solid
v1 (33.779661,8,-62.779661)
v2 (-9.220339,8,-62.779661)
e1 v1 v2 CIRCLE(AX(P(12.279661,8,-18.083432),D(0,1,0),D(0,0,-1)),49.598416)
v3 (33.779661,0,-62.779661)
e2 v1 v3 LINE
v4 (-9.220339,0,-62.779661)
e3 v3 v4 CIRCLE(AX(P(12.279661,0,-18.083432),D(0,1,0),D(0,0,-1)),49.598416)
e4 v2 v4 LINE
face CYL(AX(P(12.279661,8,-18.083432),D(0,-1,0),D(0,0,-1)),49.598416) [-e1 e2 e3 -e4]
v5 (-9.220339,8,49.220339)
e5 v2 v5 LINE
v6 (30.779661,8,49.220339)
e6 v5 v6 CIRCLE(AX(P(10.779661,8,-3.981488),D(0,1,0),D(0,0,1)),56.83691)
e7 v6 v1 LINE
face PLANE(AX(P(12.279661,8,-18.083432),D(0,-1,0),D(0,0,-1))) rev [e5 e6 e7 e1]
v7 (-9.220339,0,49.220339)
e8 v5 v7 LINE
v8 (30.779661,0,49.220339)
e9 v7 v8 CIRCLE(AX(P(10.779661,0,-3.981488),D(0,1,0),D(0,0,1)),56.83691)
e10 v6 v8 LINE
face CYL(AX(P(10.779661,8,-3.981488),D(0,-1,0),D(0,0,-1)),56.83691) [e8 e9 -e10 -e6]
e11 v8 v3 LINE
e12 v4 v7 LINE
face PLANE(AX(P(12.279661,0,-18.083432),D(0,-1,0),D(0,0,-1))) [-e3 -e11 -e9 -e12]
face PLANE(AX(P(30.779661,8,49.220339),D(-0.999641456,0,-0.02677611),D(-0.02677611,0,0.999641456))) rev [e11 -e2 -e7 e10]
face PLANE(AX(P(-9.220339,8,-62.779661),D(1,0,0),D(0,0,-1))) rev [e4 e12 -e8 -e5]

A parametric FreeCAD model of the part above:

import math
import FreeCAD as App
import Part
import Sketcher

doc = App.newDocument("Part")
params = doc.addObject("Spreadsheet::Sheet", "Params")
for row, (alias, value) in enumerate([
    ("sketch1_height", "112 mm"),
    ("pad1_length", "8 mm"),
], start=1):
    params.set(f"A{row}", alias)
    params.set(f"B{row}", "=" + value)
    params.setAlias(f"B{row}", alias)

body = doc.addObject("PartDesign::Body", "Body")

sketch1 = body.newObject("Sketcher::SketchObject", "Sketch")
sketch1.AttachmentSupport = (doc.getObject("XZ_Plane"), [""])
sketch1.MapMode = "FlatFace"
sketch1.addGeometry([
    Part.LineSegment(App.Vector(-9.220339, -62.779661, 0), App.Vector(-9.220339, 49.220339, 0)),
    Part.ArcOfCircle(Part.Circle(App.Vector(10.779661, -3.981488, 0), App.Vector(0, 0, 1), 56.83691), math.radians(69.397407), math.radians(110.602593)),
    Part.LineSegment(App.Vector(30.779661, 49.220339, 0), App.Vector(33.779661, -62.779661, 0)),
    Part.ArcOfCircle(Part.Circle(App.Vector(12.279661, -18.083432, 0), App.Vector(0, 0, 1), 49.598416), math.radians(-115.688714), math.radians(-64.311286)),
], False)
sketch1.addConstraint([
    Sketcher.Constraint("Coincident", 0, 2, 1, 2),
    Sketcher.Constraint("Coincident", 1, 1, 2, 1),
    Sketcher.Constraint("Coincident", 2, 2, 3, 2),
    Sketcher.Constraint("Coincident", 3, 1, 0, 1),
    Sketcher.Constraint("Vertical", 0),
    Sketcher.Constraint("Horizontal", 0, 2, 1, 1),
    Sketcher.Constraint("Horizontal", 2, 2, 3, 1),
    Sketcher.Constraint("DistanceY", 0, 1, 0, 2, 112.0),
    Sketcher.Constraint("DistanceX", 0, 2, 1, 3, 20.0),
    Sketcher.Constraint("DistanceX", 1, 3, 2, 2, 23.0),
    Sketcher.Constraint("Radius", 1, 56.83691),
    Sketcher.Constraint("Radius", 3, 49.598416),
    Sketcher.Constraint("DistanceX", -1, 1, 1, 3, 10.779661),
    Sketcher.Constraint("DistanceY", -1, 1, 0, 2, 49.220339),
])
sketch1.setExpression("Constraints[7]", "Params.sketch1_height")
pad1 = body.newObject("PartDesign::Pad", "Pad")
pad1.Profile = sketch1
pad1.setExpression("Length", "Params.pad1_length")
pad1.Reversed = True

doc.recompute()
